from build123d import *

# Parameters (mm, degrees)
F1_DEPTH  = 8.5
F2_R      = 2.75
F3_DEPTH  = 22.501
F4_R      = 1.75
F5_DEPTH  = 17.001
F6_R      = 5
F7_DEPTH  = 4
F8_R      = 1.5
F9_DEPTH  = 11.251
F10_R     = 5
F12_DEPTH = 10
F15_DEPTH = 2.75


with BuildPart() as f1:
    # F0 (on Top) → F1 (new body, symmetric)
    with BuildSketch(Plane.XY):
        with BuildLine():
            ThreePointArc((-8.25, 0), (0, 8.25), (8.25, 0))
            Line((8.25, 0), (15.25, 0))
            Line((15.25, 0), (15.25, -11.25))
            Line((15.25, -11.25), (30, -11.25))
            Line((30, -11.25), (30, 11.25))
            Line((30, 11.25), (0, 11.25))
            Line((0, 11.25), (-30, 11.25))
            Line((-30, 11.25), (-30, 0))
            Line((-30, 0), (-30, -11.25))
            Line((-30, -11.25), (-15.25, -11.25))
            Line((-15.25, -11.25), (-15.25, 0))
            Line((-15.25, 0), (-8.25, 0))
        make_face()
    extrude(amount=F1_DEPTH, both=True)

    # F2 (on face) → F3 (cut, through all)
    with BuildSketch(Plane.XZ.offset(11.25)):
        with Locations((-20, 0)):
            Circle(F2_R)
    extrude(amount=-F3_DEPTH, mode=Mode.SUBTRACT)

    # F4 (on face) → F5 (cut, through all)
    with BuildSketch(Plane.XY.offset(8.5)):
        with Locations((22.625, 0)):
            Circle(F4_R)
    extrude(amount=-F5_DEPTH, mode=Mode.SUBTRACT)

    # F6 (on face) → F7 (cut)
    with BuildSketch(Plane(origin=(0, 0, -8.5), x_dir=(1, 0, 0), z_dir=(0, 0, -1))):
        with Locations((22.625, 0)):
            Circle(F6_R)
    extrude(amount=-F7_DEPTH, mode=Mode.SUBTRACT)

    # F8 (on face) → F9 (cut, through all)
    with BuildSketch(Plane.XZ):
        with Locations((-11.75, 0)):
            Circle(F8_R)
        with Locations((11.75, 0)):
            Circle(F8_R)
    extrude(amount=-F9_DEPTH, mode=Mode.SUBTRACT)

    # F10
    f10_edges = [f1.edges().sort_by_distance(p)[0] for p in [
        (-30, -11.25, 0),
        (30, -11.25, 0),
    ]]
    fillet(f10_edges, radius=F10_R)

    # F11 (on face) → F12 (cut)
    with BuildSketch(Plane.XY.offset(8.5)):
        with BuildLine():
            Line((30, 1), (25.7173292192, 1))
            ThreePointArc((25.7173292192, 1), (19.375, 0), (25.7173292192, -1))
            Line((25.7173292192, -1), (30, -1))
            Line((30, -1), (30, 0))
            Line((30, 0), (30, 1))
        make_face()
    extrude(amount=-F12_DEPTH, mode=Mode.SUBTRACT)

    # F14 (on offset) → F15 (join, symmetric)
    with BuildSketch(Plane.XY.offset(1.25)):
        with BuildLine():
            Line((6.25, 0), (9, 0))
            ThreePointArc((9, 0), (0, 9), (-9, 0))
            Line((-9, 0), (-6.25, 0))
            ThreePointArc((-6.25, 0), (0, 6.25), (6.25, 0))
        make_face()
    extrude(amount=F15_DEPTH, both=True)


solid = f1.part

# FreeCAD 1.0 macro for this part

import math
import FreeCAD as App
import Part
import Sketcher
from FreeCAD import Vector
Q = App.Units.Quantity


def edges_at(feature, points):
    """Names of the edges that pass closest to the given points."""
    edges = feature.Shape.Edges
    near = lambda p: min(range(len(edges)), key=lambda i: edges[i].distToShape(Part.Vertex(*p))[0])
    return sorted({f"Edge{near(p) + 1}" for p in points})

doc = App.newDocument("Part")
body = doc.addObject("PartDesign::Body", "Body")

sketch1 = doc.addObject("Sketcher::SketchObject", "Sketch")
body.addObject(sketch1)
sketch1.AttachmentSupport = (doc.XY_Plane, [""])
sketch1.MapMode = "FlatFace"
sketch1.addGeometry([
    Part.ArcOfCircle(Part.Circle(Vector(0, 0, 0), Vector(0, 0, 1), 8), math.radians(0), math.radians(180)),
    Part.LineSegment(Vector(8, 0, 0), Vector(15, 0, 0)),
    Part.LineSegment(Vector(15, 0, 0), Vector(15, -11, 0)),
    Part.LineSegment(Vector(15, -11, 0), Vector(30, -11, 0)),
    Part.LineSegment(Vector(30, -11, 0), Vector(30, 11, 0)),
    Part.LineSegment(Vector(30, 11, 0), Vector(-30, 11, 0)),
    Part.LineSegment(Vector(-30, 11, 0), Vector(-30, -11, 0)),
    Part.LineSegment(Vector(-30, -11, 0), Vector(-15, -11, 0)),
    Part.LineSegment(Vector(-15, -11, 0), Vector(-15, 0, 0)),
    Part.LineSegment(Vector(-15, 0, 0), Vector(-8, 0, 0)),
], False)
sketch1.addConstraint([
    Sketcher.Constraint("Coincident", 0, 1, 1, 1),
    Sketcher.Constraint("Coincident", 1, 2, 2, 1),
    Sketcher.Constraint("Coincident", 2, 2, 3, 1),
    Sketcher.Constraint("Coincident", 3, 2, 4, 1),
    Sketcher.Constraint("Coincident", 4, 2, 5, 1),
    Sketcher.Constraint("Coincident", 5, 2, 6, 1),
    Sketcher.Constraint("Coincident", 6, 2, 7, 1),
    Sketcher.Constraint("Coincident", 7, 2, 8, 1),
    Sketcher.Constraint("Coincident", 8, 2, 9, 1),
    Sketcher.Constraint("Coincident", 9, 2, 0, 2),
    Sketcher.Constraint("Horizontal", 1),
    Sketcher.Constraint("Vertical", 2),
    Sketcher.Constraint("Horizontal", 3),
    Sketcher.Constraint("Vertical", 4),
    Sketcher.Constraint("Horizontal", 5),
    Sketcher.Constraint("Vertical", 6),
    Sketcher.Constraint("Horizontal", 7),
    Sketcher.Constraint("Vertical", 8),
    Sketcher.Constraint("Horizontal", 9),
    Sketcher.Constraint("Coincident", 0, 3, -1, 1),
    Sketcher.Constraint("Symmetric", 3, 2, 5, 2, -1, 1),
    Sketcher.Constraint("Symmetric", 1, 2, 8, 2, -1, 1),
    Sketcher.Constraint("PointOnObject", 0, 1, -1),
    Sketcher.Constraint("Horizontal", 3, 2, 6, 2),
    Sketcher.Constraint("DistanceX", 1, 1, 1, 2, Q("7 mm")),
    Sketcher.Constraint("DistanceX", 5, 2, 5, 1, Q("60 mm")),
    Sketcher.Constraint("Radius", 0, Q("8.25 mm")),
    Sketcher.Constraint("DistanceY", 4, 1, 4, 2, Q("22.5 mm")),
])
pad1 = doc.addObject("PartDesign::Pad", "Pad")
body.addObject(pad1)
pad1.Profile = sketch1
pad1.Length = 17
pad1.Midplane = True

sketch2 = doc.addObject("Sketcher::SketchObject", "Sketch001")
body.addObject(sketch2)
sketch2.AttachmentSupport = (doc.XZ_Plane, [""])
sketch2.MapMode = "FlatFace"
sketch2.AttachmentOffset = App.Placement(Vector(0, 0, 11.25), App.Rotation())
sketch2.addGeometry(Part.Circle(Vector(-20, 0, 0), Vector(0, 0, 1), 2.8), False)
sketch2.addConstraint([
    Sketcher.Constraint("PointOnObject", 0, 3, -1),
    Sketcher.Constraint("Diameter", 0, Q("5.5 mm")),
    Sketcher.Constraint("DistanceX", 0, 3, -1, 1, Q("20 mm")),
])
pocket1 = doc.addObject("PartDesign::Pocket", "Pocket")
body.addObject(pocket1)
pocket1.Profile = sketch2
pocket1.Type = "ThroughAll"

sketch3 = doc.addObject("Sketcher::SketchObject", "Sketch002")
body.addObject(sketch3)
sketch3.AttachmentSupport = (doc.XY_Plane, [""])
sketch3.MapMode = "FlatFace"
sketch3.AttachmentOffset = App.Placement(Vector(0, 0, 8.5), App.Rotation())
sketch3.addGeometry(Part.Circle(Vector(22.6, 0, 0), Vector(0, 0, 1), 1.8), False)
sketch3.addConstraint([
    Sketcher.Constraint("PointOnObject", 0, 3, -1),
    Sketcher.Constraint("Diameter", 0, Q("3.5 mm")),
    Sketcher.Constraint("DistanceX", -1, 1, 0, 3, Q("22.625 mm")),
])
pocket2 = doc.addObject("PartDesign::Pocket", "Pocket001")
body.addObject(pocket2)
pocket2.Profile = sketch3
pocket2.Type = "ThroughAll"

sketch4 = doc.addObject("Sketcher::SketchObject", "Sketch003")
body.addObject(sketch4)
sketch4.AttachmentSupport = (doc.XY_Plane, [""])
sketch4.MapMode = "FlatFace"
sketch4.AttachmentOffset = App.Placement(Vector(0, 0, -8.5), App.Rotation())
sketch4.addGeometry(Part.Circle(Vector(23, 0, 0), Vector(0, 0, 1), 5), False)
sketch4.addConstraint([
    Sketcher.Constraint("PointOnObject", 0, 3, -1),
    Sketcher.Constraint("Diameter", 0, Q("10 mm")),
    Sketcher.Constraint("DistanceX", -1, 1, 0, 3, Q("22.625 mm")),
])
pocket3 = doc.addObject("PartDesign::Pocket", "Pocket002")
body.addObject(pocket3)
pocket3.Profile = sketch4
pocket3.Length = 4
pocket3.Reversed = True

sketch5 = doc.addObject("Sketcher::SketchObject", "Sketch004")
body.addObject(sketch5)
sketch5.AttachmentSupport = (doc.XZ_Plane, [""])
sketch5.MapMode = "FlatFace"
sketch5.addGeometry([
    Part.Circle(Vector(-11.8, 0, 0), Vector(0, 0, 1), 1.5),
    Part.Circle(Vector(11.8, 0, 0), Vector(0, 0, 1), 1.5),
], False)
sketch5.addConstraint([
    Sketcher.Constraint("Equal", 0, 1),
    Sketcher.Constraint("Symmetric", 0, 3, 1, 3, -1, 1),
    Sketcher.Constraint("PointOnObject", 0, 3, -1),
    Sketcher.Constraint("Diameter", 0, Q("3 mm")),
    Sketcher.Constraint("DistanceX", 0, 3, 1, 3, Q("23.5 mm")),
])
pocket4 = doc.addObject("PartDesign::Pocket", "Pocket003")
body.addObject(pocket4)
pocket4.Profile = sketch5
pocket4.Type = "ThroughAll"
doc.recompute()

fillet = doc.addObject("PartDesign::Fillet", "Fillet")
body.addObject(fillet)
fillet.Base = (pocket4, edges_at(pocket4, [(-30, -11.25, 0), (30, -11.25, 0)]))
fillet.Radius = 5

sketch6 = doc.addObject("Sketcher::SketchObject", "Sketch005")
body.addObject(sketch6)
sketch6.AttachmentSupport = (doc.XY_Plane, [""])
sketch6.MapMode = "FlatFace"
sketch6.AttachmentOffset = App.Placement(Vector(0, 0, 8.5), App.Rotation())
sketch6.addGeometry([
    Part.LineSegment(Vector(30, 1, 0), Vector(25.7, 1, 0)),
    Part.ArcOfCircle(Part.Circle(Vector(22.6, 0, 0), Vector(0, 0, 1), 3.2), math.radians(18), math.radians(342)),
    Part.LineSegment(Vector(25.7, -1, 0), Vector(30, -1, 0)),
    Part.LineSegment(Vector(30, -1, 0), Vector(30, 1, 0)),
], False)
sketch6.addConstraint([
    Sketcher.Constraint("Coincident", 0, 2, 1, 1),
    Sketcher.Constraint("Coincident", 1, 2, 2, 1),
    Sketcher.Constraint("Coincident", 2, 2, 3, 1),
    Sketcher.Constraint("Coincident", 3, 2, 0, 1),
    Sketcher.Constraint("Horizontal", 0),
    Sketcher.Constraint("Horizontal", 2),
    Sketcher.Constraint("Vertical", 3),
    Sketcher.Constraint("Symmetric", 0, 2, 1, 2, -1),
    Sketcher.Constraint("DistanceY", 3, 1, 3, 2, Q("2 mm")),
    Sketcher.Constraint("Radius", 1, Q("3.25 mm")),
    Sketcher.Constraint("DistanceX", -1, 1, 2, 2, Q("30 mm")),
    Sketcher.Constraint("DistanceX", -1, 1, 1, 3, Q("22.625 mm")),
])
pocket5 = doc.addObject("PartDesign::Pocket", "Pocket004")
body.addObject(pocket5)
pocket5.Profile = sketch6
pocket5.Length = 10

sketch7 = doc.addObject("Sketcher::SketchObject", "Sketch006")
body.addObject(sketch7)
sketch7.AttachmentSupport = (doc.XY_Plane, [""])
sketch7.MapMode = "FlatFace"
sketch7.AttachmentOffset = App.Placement(Vector(0, 0, 1.25), App.Rotation())
sketch7.addGeometry([
    Part.LineSegment(Vector(6.2, 0, 0), Vector(9, 0, 0)),
    Part.ArcOfCircle(Part.Circle(Vector(0, 0, 0), Vector(0, 0, 1), 9), math.radians(0), math.radians(180)),
    Part.LineSegment(Vector(-9, 0, 0), Vector(-6.2, 0, 0)),
    Part.ArcOfCircle(Part.Circle(Vector(0, 0, 0), Vector(0, 0, 1), 6.2), math.radians(0), math.radians(180)),
], False)
sketch7.addConstraint([
    Sketcher.Constraint("Coincident", 0, 2, 1, 1),
    Sketcher.Constraint("Coincident", 1, 2, 2, 1),
    Sketcher.Constraint("Coincident", 2, 2, 3, 2),
    Sketcher.Constraint("Coincident", 3, 1, 0, 1),
    Sketcher.Constraint("Horizontal", 0),
    Sketcher.Constraint("Horizontal", 2),
    Sketcher.Constraint("Coincident", 1, 3, -1, 1),
    Sketcher.Constraint("Coincident", 3, 3, -1, 1),
    Sketcher.Constraint("PointOnObject", 0, 2, -1),
    Sketcher.Constraint("PointOnObject", 1, 2, -1),
    Sketcher.Constraint("Radius", 1, Q("9 mm")),
    Sketcher.Constraint("Radius", 3, Q("6.25 mm")),
])
pad2 = doc.addObject("PartDesign::Pad", "Pad001")
body.addObject(pad2)
pad2.Profile = sketch7
pad2.Length = 5.5
pad2.Midplane = True

doc.recompute()
